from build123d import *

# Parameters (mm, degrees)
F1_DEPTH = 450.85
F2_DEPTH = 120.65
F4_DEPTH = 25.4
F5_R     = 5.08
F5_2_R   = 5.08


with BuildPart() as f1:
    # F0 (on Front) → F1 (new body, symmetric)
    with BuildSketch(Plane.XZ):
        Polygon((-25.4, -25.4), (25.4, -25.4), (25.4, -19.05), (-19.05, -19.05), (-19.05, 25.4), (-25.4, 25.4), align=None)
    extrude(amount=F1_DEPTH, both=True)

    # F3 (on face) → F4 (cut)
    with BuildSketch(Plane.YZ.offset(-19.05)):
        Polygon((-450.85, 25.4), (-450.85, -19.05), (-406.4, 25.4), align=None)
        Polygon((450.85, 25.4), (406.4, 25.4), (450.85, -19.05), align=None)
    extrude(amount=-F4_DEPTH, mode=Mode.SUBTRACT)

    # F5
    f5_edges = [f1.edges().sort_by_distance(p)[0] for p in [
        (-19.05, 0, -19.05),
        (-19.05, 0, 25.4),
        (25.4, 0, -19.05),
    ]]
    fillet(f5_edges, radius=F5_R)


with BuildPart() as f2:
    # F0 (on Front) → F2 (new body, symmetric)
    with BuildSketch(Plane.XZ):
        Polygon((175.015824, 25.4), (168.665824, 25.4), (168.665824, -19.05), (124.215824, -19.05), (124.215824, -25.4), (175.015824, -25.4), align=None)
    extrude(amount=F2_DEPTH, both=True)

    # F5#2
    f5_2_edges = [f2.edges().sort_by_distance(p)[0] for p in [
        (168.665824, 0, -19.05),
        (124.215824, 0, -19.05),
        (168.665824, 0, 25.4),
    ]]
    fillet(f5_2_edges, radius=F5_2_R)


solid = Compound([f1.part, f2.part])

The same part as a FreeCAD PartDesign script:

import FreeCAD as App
import Part
import Sketcher
Q = App.Units.Quantity


def edges_at(feature, points):
    """Names of the edges that pass closest to the given points."""
    edges = feature.Shape.Edges
    near = lambda p: min(range(len(edges)), key=lambda i: edges[i].distToShape(Part.Vertex(*p))[0])
    return sorted({f"Edge{near(p) + 1}" for p in points})

doc = App.newDocument("Part")
body = doc.addObject("PartDesign::Body", "Body")

sketch1 = body.newObject("Sketcher::SketchObject", "Sketch")
sketch1.AttachmentSupport = (doc.getObject("XZ_Plane"), [""])
sketch1.MapMode = "FlatFace"
sketch1.addGeometry([
    Part.LineSegment(App.Vector(-25.4, -25.4, 0), App.Vector(25.4, -25.4, 0)),
    Part.LineSegment(App.Vector(25.4, -25.4, 0), App.Vector(25.4, -19.05, 0)),
    Part.LineSegment(App.Vector(25.4, -19.05, 0), App.Vector(-19.05, -19.05, 0)),
    Part.LineSegment(App.Vector(-19.05, -19.05, 0), App.Vector(-19.05, 25.4, 0)),
    Part.LineSegment(App.Vector(-19.05, 25.4, 0), App.Vector(-25.4, 25.4, 0)),
    Part.LineSegment(App.Vector(-25.4, 25.4, 0), App.Vector(-25.4, -25.4, 0)),
], False)
sketch1.addConstraint([
    Sketcher.Constraint("Coincident", 0, 2, 1, 1),
    Sketcher.Constraint("Coincident", 1, 2, 2, 1),
    Sketcher.Constraint("Coincident", 2, 2, 3, 1),
    Sketcher.Constraint("Coincident", 3, 2, 4, 1),
    Sketcher.Constraint("Coincident", 4, 2, 5, 1),
    Sketcher.Constraint("Coincident", 5, 2, 0, 1),
    Sketcher.Constraint("Horizontal", 0),
    Sketcher.Constraint("Vertical", 1),
    Sketcher.Constraint("Horizontal", 2),
    Sketcher.Constraint("Vertical", 3),
    Sketcher.Constraint("Horizontal", 4),
    Sketcher.Constraint("Vertical", 5),
    Sketcher.Constraint("Symmetric", 0, 2, 4, 2, -1, 1),
    Sketcher.Constraint("Equal", 4, 1),
    Sketcher.Constraint("Equal", 2, 3),
    Sketcher.Constraint("DistanceX", 0, 1, 0, 2, Q("2 in")),
    Sketcher.Constraint("DistanceX", 2, 2, 2, 1, Q("1.75 in")),
])
pad1 = body.newObject("PartDesign::Pad", "Pad")
pad1.Profile = sketch1
pad1.Length = Q("35.5 in")
pad1.Midplane = True

sketch2 = body.newObject("Sketcher::SketchObject", "Sketch001")
sketch2.AttachmentSupport = (doc.getObject("YZ_Plane"), [""])
sketch2.MapMode = "FlatFace"
sketch2.AttachmentOffset = App.Placement(App.Vector(0, 0, -0.75 * 25.4), App.Rotation())
sketch2.addGeometry([
    Part.LineSegment(App.Vector(-450.85, 25.4, 0), App.Vector(-450.85, -19.05, 0)),
    Part.LineSegment(App.Vector(-450.85, -19.05, 0), App.Vector(-406.4, 25.4, 0)),
    Part.LineSegment(App.Vector(-406.4, 25.4, 0), App.Vector(-450.85, 25.4, 0)),
    Part.LineSegment(App.Vector(450.85, 25.4, 0), App.Vector(406.4, 25.4, 0)),
    Part.LineSegment(App.Vector(406.4, 25.4, 0), App.Vector(450.85, -19.05, 0)),
    Part.LineSegment(App.Vector(450.85, -19.05, 0), App.Vector(450.85, 25.4, 0)),
], False)
sketch2.addConstraint([
    Sketcher.Constraint("Coincident", 0, 2, 1, 1),
    Sketcher.Constraint("Coincident", 1, 2, 2, 1),
    Sketcher.Constraint("Coincident", 2, 2, 0, 1),
    Sketcher.Constraint("Coincident", 3, 2, 4, 1),
    Sketcher.Constraint("Coincident", 4, 2, 5, 1),
    Sketcher.Constraint("Coincident", 5, 2, 3, 1),
    Sketcher.Constraint("Vertical", 0),
    Sketcher.Constraint("Horizontal", 2),
    Sketcher.Constraint("Horizontal", 3),
    Sketcher.Constraint("Vertical", 5),
    Sketcher.Constraint("Symmetric", 1, 2, 3, 2, -2),
    Sketcher.Constraint("Symmetric", 0, 2, 4, 2, -2),
    Sketcher.Constraint("Perpendicular", 1, 4),
    Sketcher.Constraint("DistanceX", 1, 2, -1, 1, Q("16 in")),
    Sketcher.Constraint("DistanceY", -1, 1, 1, 2, Q("1 in")),
    Sketcher.Constraint("DistanceX", 2, 2, 2, 1, Q("1.75 in")),
])
pocket1 = body.newObject("PartDesign::Pocket", "Pocket")
pocket1.Profile = sketch2
pocket1.Length = Q("1 in")
doc.recompute()

fillet = body.newObject("PartDesign::Fillet", "Fillet")
fillet.Base = (pocket1, edges_at(pocket1, [(-19.05, 0, -19.05), (-19.05, 0, 25.4), (25.4, 0, -19.05)]))
fillet.Radius = Q("0.2 in")
body2 = doc.addObject("PartDesign::Body", "Body001")

sketch3 = body2.newObject("Sketcher::SketchObject", "Sketch002")
sketch3.AttachmentSupport = (doc.getObject("XZ_Plane001"), [""])
sketch3.MapMode = "FlatFace"
sketch3.addGeometry([
    Part.LineSegment(App.Vector(175.015824, 25.4, 0), App.Vector(168.665824, 25.4, 0)),
    Part.LineSegment(App.Vector(168.665824, 25.4, 0), App.Vector(168.665824, -19.05, 0)),
    Part.LineSegment(App.Vector(168.665824, -19.05, 0), App.Vector(124.215824, -19.05, 0)),
    Part.LineSegment(App.Vector(124.215824, -19.05, 0), App.Vector(124.215824, -25.4, 0)),
    Part.LineSegment(App.Vector(124.215824, -25.4, 0), App.Vector(175.015824, -25.4, 0)),
    Part.LineSegment(App.Vector(175.015824, -25.4, 0), App.Vector(175.015824, 25.4, 0)),
], False)
sketch3.addConstraint([
    Sketcher.Constraint("Coincident", 0, 2, 1, 1),
    Sketcher.Constraint("Coincident", 1, 2, 2, 1),
    Sketcher.Constraint("Coincident", 2, 2, 3, 1),
    Sketcher.Constraint("Coincident", 3, 2, 4, 1),
    Sketcher.Constraint("Coincident", 4, 2, 5, 1),
    Sketcher.Constraint("Coincident", 5, 2, 0, 1),
    Sketcher.Constraint("Horizontal", 0),
    Sketcher.Constraint("Vertical", 1),
    Sketcher.Constraint("Horizontal", 2),
    Sketcher.Constraint("Vertical", 3),
    Sketcher.Constraint("Horizontal", 4),
    Sketcher.Constraint("Vertical", 5),
    Sketcher.Constraint("Equal", 2, 1),
    Sketcher.Constraint("Equal", 0, 3),
    Sketcher.Constraint("DistanceX", 4, 1, 4, 2, Q("2 in")),
    Sketcher.Constraint("DistanceY", -1, 1, 0, 2, Q("1 in")),
    Sketcher.Constraint("DistanceX", 0, 2, 0, 1, Q("0.25 in")),
    Sketcher.Constraint("DistanceX", -1, 1, 0, 2, Q("168.665824 mm")),
])
pad2 = body2.newObject("PartDesign::Pad", "Pad001")
pad2.Profile = sketch3
pad2.Length = Q("9.5 in")
pad2.Midplane = True
doc.recompute()

fillet2 = body2.newObject("PartDesign::Fillet", "Fillet001")
fillet2.Base = (pad2, edges_at(pad2, [(168.666, 0, -19.05), (124.216, 0, -19.05), (168.666, 0, 25.4)]))
fillet2.Radius = Q("0.2 in")

doc.recompute()
